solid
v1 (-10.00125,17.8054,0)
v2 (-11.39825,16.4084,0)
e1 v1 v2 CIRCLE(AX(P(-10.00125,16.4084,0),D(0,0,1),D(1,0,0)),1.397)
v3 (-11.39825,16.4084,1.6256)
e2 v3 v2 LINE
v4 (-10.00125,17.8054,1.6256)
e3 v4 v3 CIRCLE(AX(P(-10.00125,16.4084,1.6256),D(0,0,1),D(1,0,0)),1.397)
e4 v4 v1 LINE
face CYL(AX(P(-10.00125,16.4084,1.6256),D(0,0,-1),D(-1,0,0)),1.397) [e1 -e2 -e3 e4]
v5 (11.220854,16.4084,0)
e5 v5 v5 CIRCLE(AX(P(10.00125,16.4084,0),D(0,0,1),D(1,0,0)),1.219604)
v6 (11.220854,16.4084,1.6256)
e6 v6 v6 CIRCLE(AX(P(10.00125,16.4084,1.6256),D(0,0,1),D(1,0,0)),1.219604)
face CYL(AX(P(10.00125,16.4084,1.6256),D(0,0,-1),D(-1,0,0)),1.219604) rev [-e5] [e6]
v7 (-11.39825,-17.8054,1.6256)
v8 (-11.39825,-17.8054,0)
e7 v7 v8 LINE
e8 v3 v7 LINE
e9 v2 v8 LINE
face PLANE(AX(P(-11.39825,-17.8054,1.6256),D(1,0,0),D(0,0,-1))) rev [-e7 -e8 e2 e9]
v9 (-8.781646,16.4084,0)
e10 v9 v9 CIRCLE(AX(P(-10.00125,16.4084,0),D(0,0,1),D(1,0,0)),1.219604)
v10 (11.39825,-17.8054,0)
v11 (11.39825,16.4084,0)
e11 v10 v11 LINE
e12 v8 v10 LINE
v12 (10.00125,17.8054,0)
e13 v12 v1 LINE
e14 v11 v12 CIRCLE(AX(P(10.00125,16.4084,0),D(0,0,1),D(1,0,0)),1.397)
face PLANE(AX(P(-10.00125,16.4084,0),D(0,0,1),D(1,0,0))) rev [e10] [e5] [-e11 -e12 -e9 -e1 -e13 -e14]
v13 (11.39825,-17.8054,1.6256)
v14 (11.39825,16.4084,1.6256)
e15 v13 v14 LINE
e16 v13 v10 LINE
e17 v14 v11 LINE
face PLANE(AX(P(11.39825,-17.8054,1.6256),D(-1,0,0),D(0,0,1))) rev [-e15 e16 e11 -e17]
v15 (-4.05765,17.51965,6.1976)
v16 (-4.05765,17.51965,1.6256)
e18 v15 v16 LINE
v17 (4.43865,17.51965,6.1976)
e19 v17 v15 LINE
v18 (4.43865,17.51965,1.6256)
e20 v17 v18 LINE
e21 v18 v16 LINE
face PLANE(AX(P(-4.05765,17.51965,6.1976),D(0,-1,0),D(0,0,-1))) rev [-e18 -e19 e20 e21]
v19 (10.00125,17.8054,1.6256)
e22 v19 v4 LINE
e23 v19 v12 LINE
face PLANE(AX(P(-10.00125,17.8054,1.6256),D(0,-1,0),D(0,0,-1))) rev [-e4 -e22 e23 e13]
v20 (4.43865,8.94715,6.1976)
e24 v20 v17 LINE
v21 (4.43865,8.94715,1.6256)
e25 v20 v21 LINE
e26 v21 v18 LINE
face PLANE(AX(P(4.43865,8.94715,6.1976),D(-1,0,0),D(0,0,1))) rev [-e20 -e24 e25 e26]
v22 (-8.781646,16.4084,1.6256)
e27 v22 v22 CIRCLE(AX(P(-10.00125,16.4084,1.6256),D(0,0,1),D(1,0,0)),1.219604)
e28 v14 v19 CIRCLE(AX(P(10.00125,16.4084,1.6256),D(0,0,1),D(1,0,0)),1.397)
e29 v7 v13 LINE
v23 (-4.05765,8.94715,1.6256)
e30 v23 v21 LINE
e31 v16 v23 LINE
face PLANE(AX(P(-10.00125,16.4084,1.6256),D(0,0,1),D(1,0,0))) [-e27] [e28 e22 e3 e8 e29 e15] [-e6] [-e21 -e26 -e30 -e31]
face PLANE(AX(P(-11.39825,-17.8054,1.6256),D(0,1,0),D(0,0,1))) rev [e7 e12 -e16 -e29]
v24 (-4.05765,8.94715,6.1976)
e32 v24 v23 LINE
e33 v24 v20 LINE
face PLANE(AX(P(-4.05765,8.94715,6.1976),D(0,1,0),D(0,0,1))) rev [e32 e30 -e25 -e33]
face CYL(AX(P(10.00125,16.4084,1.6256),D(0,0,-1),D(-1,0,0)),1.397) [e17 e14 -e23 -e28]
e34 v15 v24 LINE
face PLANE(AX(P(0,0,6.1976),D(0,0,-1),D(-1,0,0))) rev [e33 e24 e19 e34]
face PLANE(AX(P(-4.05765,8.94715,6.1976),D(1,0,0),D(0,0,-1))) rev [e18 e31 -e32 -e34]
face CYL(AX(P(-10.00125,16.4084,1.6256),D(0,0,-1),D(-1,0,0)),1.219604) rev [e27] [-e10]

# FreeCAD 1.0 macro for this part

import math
import FreeCAD as App
import Part
import Sketcher
from FreeCAD import Vector
Q = App.Units.Quantity


def add_polygon(sketch, points):
    """Adds a closed chain of lines whose ends are joined by coincident constraints."""
    first, n = sketch.GeometryCount, len(points)
    for a, b in zip(points, points[1:] + points[:1]):
        sketch.addGeometry(Part.LineSegment(App.Vector(*a, 0), App.Vector(*b, 0)), False)
    for i in range(n):
        sketch.addConstraint(Sketcher.Constraint("Coincident", first + i, 2, first + (i + 1) % n, 1))

doc = App.newDocument("Part")
body = doc.addObject("PartDesign::Body", "Body")

sketch1 = body.newObject("Sketcher::SketchObject", "Sketch")
sketch1.AttachmentSupport = (doc.getObject("XY_Plane"), [""])
sketch1.MapMode = "FlatFace"
sketch1.addGeometry([
    Part.LineSegment(Vector(-11.4, -17.8, 0), Vector(11.4, -17.8, 0)),
    Part.LineSegment(Vector(11.4, -17.8, 0), Vector(11.4, 16.4, 0)),
    Part.ArcOfCircle(Part.Circle(Vector(10, 16.4, 0), Vector(0, 0, 1), 1.4), math.radians(0), math.radians(90)),
    Part.LineSegment(Vector(10, 17.8, 0), Vector(-10, 17.8, 0)),
    Part.ArcOfCircle(Part.Circle(Vector(-10, 16.4, 0), Vector(0, 0, 1), 1.4), math.radians(90), math.radians(180)),
    Part.LineSegment(Vector(-11.4, 16.4, 0), Vector(-11.4, -17.8, 0)),
    Part.Circle(Vector(-10, 16.4, 0), Vector(0, 0, 1), 1.2),
    Part.Circle(Vector(10, 16.4, 0), Vector(0, 0, 1), 1.2),
], False)
sketch1.addConstraint([
    Sketcher.Constraint("Coincident", 0, 2, 1, 1),
    Sketcher.Constraint("Tangent", 1, 2, 2, 1),
    Sketcher.Constraint("Tangent", 2, 2, 3, 1),
    Sketcher.Constraint("Tangent", 3, 2, 4, 1),
    Sketcher.Constraint("Tangent", 4, 2, 5, 1),
    Sketcher.Constraint("Coincident", 5, 2, 0, 1),
    Sketcher.Constraint("Horizontal", 0),
    Sketcher.Constraint("Vertical", 1),
    Sketcher.Constraint("Horizontal", 3),
    Sketcher.Constraint("Vertical", 5),
    Sketcher.Constraint("Coincident", 6, 3, 4, 3),
    Sketcher.Constraint("Coincident", 7, 3, 2, 3),
    Sketcher.Constraint("Equal", 2, 4),
    Sketcher.Constraint("Equal", 6, 7),
    Sketcher.Constraint("Radius", 2, Q("0.055 in")),
    Sketcher.Constraint("DistanceY", 1, 1, 1, 2, Q("1.347 in")),
    Sketcher.Constraint("DistanceX", 0, 1, 0, 2, Q("0.8975 in")),
    Sketcher.Constraint("DistanceY", -1, 1, 2, 3, Q("0.646 in")),
    Sketcher.Constraint("Diameter", 6, Q("2.439207 mm")),
    Sketcher.Constraint("DistanceX", -1, 1, 2, 3, Q("10.00125 mm")),
])
pad1 = body.newObject("PartDesign::Pad", "Pad")
pad1.Profile = sketch1
pad1.Length = Q("0.064 in")

sketch2 = body.newObject("Sketcher::SketchObject", "Sketch001")
sketch2.AttachmentSupport = (doc.getObject("XY_Plane"), [""])
sketch2.MapMode = "FlatFace"
sketch2.AttachmentOffset = App.Placement(Vector(0, 0, 0.064 * 25.4), App.Rotation())
add_polygon(sketch2, [(-4, 18), (-4, 9), (4, 9), (4, 18)])
sketch2.addConstraint([
    Sketcher.Constraint("Vertical", 0),
    Sketcher.Constraint("Horizontal", 1),
    Sketcher.Constraint("Vertical", 2),
    Sketcher.Constraint("Horizontal", 3),
    Sketcher.Constraint("DistanceX", 1, 1, 1, 2, Q("0.3345 in")),
    Sketcher.Constraint("DistanceY", 0, 2, 0, 1, Q("0.3375 in")),
    Sketcher.Constraint("DistanceX", 0, 2, -1, 1, Q("4.05765 mm")),
    Sketcher.Constraint("DistanceY", -1, 1, 0, 2, Q("8.94715 mm")),
])
pad2 = body.newObject("PartDesign::Pad", "Pad001")
pad2.Profile = sketch2
pad2.Length = Q("0.18 in")

doc.recompute()
